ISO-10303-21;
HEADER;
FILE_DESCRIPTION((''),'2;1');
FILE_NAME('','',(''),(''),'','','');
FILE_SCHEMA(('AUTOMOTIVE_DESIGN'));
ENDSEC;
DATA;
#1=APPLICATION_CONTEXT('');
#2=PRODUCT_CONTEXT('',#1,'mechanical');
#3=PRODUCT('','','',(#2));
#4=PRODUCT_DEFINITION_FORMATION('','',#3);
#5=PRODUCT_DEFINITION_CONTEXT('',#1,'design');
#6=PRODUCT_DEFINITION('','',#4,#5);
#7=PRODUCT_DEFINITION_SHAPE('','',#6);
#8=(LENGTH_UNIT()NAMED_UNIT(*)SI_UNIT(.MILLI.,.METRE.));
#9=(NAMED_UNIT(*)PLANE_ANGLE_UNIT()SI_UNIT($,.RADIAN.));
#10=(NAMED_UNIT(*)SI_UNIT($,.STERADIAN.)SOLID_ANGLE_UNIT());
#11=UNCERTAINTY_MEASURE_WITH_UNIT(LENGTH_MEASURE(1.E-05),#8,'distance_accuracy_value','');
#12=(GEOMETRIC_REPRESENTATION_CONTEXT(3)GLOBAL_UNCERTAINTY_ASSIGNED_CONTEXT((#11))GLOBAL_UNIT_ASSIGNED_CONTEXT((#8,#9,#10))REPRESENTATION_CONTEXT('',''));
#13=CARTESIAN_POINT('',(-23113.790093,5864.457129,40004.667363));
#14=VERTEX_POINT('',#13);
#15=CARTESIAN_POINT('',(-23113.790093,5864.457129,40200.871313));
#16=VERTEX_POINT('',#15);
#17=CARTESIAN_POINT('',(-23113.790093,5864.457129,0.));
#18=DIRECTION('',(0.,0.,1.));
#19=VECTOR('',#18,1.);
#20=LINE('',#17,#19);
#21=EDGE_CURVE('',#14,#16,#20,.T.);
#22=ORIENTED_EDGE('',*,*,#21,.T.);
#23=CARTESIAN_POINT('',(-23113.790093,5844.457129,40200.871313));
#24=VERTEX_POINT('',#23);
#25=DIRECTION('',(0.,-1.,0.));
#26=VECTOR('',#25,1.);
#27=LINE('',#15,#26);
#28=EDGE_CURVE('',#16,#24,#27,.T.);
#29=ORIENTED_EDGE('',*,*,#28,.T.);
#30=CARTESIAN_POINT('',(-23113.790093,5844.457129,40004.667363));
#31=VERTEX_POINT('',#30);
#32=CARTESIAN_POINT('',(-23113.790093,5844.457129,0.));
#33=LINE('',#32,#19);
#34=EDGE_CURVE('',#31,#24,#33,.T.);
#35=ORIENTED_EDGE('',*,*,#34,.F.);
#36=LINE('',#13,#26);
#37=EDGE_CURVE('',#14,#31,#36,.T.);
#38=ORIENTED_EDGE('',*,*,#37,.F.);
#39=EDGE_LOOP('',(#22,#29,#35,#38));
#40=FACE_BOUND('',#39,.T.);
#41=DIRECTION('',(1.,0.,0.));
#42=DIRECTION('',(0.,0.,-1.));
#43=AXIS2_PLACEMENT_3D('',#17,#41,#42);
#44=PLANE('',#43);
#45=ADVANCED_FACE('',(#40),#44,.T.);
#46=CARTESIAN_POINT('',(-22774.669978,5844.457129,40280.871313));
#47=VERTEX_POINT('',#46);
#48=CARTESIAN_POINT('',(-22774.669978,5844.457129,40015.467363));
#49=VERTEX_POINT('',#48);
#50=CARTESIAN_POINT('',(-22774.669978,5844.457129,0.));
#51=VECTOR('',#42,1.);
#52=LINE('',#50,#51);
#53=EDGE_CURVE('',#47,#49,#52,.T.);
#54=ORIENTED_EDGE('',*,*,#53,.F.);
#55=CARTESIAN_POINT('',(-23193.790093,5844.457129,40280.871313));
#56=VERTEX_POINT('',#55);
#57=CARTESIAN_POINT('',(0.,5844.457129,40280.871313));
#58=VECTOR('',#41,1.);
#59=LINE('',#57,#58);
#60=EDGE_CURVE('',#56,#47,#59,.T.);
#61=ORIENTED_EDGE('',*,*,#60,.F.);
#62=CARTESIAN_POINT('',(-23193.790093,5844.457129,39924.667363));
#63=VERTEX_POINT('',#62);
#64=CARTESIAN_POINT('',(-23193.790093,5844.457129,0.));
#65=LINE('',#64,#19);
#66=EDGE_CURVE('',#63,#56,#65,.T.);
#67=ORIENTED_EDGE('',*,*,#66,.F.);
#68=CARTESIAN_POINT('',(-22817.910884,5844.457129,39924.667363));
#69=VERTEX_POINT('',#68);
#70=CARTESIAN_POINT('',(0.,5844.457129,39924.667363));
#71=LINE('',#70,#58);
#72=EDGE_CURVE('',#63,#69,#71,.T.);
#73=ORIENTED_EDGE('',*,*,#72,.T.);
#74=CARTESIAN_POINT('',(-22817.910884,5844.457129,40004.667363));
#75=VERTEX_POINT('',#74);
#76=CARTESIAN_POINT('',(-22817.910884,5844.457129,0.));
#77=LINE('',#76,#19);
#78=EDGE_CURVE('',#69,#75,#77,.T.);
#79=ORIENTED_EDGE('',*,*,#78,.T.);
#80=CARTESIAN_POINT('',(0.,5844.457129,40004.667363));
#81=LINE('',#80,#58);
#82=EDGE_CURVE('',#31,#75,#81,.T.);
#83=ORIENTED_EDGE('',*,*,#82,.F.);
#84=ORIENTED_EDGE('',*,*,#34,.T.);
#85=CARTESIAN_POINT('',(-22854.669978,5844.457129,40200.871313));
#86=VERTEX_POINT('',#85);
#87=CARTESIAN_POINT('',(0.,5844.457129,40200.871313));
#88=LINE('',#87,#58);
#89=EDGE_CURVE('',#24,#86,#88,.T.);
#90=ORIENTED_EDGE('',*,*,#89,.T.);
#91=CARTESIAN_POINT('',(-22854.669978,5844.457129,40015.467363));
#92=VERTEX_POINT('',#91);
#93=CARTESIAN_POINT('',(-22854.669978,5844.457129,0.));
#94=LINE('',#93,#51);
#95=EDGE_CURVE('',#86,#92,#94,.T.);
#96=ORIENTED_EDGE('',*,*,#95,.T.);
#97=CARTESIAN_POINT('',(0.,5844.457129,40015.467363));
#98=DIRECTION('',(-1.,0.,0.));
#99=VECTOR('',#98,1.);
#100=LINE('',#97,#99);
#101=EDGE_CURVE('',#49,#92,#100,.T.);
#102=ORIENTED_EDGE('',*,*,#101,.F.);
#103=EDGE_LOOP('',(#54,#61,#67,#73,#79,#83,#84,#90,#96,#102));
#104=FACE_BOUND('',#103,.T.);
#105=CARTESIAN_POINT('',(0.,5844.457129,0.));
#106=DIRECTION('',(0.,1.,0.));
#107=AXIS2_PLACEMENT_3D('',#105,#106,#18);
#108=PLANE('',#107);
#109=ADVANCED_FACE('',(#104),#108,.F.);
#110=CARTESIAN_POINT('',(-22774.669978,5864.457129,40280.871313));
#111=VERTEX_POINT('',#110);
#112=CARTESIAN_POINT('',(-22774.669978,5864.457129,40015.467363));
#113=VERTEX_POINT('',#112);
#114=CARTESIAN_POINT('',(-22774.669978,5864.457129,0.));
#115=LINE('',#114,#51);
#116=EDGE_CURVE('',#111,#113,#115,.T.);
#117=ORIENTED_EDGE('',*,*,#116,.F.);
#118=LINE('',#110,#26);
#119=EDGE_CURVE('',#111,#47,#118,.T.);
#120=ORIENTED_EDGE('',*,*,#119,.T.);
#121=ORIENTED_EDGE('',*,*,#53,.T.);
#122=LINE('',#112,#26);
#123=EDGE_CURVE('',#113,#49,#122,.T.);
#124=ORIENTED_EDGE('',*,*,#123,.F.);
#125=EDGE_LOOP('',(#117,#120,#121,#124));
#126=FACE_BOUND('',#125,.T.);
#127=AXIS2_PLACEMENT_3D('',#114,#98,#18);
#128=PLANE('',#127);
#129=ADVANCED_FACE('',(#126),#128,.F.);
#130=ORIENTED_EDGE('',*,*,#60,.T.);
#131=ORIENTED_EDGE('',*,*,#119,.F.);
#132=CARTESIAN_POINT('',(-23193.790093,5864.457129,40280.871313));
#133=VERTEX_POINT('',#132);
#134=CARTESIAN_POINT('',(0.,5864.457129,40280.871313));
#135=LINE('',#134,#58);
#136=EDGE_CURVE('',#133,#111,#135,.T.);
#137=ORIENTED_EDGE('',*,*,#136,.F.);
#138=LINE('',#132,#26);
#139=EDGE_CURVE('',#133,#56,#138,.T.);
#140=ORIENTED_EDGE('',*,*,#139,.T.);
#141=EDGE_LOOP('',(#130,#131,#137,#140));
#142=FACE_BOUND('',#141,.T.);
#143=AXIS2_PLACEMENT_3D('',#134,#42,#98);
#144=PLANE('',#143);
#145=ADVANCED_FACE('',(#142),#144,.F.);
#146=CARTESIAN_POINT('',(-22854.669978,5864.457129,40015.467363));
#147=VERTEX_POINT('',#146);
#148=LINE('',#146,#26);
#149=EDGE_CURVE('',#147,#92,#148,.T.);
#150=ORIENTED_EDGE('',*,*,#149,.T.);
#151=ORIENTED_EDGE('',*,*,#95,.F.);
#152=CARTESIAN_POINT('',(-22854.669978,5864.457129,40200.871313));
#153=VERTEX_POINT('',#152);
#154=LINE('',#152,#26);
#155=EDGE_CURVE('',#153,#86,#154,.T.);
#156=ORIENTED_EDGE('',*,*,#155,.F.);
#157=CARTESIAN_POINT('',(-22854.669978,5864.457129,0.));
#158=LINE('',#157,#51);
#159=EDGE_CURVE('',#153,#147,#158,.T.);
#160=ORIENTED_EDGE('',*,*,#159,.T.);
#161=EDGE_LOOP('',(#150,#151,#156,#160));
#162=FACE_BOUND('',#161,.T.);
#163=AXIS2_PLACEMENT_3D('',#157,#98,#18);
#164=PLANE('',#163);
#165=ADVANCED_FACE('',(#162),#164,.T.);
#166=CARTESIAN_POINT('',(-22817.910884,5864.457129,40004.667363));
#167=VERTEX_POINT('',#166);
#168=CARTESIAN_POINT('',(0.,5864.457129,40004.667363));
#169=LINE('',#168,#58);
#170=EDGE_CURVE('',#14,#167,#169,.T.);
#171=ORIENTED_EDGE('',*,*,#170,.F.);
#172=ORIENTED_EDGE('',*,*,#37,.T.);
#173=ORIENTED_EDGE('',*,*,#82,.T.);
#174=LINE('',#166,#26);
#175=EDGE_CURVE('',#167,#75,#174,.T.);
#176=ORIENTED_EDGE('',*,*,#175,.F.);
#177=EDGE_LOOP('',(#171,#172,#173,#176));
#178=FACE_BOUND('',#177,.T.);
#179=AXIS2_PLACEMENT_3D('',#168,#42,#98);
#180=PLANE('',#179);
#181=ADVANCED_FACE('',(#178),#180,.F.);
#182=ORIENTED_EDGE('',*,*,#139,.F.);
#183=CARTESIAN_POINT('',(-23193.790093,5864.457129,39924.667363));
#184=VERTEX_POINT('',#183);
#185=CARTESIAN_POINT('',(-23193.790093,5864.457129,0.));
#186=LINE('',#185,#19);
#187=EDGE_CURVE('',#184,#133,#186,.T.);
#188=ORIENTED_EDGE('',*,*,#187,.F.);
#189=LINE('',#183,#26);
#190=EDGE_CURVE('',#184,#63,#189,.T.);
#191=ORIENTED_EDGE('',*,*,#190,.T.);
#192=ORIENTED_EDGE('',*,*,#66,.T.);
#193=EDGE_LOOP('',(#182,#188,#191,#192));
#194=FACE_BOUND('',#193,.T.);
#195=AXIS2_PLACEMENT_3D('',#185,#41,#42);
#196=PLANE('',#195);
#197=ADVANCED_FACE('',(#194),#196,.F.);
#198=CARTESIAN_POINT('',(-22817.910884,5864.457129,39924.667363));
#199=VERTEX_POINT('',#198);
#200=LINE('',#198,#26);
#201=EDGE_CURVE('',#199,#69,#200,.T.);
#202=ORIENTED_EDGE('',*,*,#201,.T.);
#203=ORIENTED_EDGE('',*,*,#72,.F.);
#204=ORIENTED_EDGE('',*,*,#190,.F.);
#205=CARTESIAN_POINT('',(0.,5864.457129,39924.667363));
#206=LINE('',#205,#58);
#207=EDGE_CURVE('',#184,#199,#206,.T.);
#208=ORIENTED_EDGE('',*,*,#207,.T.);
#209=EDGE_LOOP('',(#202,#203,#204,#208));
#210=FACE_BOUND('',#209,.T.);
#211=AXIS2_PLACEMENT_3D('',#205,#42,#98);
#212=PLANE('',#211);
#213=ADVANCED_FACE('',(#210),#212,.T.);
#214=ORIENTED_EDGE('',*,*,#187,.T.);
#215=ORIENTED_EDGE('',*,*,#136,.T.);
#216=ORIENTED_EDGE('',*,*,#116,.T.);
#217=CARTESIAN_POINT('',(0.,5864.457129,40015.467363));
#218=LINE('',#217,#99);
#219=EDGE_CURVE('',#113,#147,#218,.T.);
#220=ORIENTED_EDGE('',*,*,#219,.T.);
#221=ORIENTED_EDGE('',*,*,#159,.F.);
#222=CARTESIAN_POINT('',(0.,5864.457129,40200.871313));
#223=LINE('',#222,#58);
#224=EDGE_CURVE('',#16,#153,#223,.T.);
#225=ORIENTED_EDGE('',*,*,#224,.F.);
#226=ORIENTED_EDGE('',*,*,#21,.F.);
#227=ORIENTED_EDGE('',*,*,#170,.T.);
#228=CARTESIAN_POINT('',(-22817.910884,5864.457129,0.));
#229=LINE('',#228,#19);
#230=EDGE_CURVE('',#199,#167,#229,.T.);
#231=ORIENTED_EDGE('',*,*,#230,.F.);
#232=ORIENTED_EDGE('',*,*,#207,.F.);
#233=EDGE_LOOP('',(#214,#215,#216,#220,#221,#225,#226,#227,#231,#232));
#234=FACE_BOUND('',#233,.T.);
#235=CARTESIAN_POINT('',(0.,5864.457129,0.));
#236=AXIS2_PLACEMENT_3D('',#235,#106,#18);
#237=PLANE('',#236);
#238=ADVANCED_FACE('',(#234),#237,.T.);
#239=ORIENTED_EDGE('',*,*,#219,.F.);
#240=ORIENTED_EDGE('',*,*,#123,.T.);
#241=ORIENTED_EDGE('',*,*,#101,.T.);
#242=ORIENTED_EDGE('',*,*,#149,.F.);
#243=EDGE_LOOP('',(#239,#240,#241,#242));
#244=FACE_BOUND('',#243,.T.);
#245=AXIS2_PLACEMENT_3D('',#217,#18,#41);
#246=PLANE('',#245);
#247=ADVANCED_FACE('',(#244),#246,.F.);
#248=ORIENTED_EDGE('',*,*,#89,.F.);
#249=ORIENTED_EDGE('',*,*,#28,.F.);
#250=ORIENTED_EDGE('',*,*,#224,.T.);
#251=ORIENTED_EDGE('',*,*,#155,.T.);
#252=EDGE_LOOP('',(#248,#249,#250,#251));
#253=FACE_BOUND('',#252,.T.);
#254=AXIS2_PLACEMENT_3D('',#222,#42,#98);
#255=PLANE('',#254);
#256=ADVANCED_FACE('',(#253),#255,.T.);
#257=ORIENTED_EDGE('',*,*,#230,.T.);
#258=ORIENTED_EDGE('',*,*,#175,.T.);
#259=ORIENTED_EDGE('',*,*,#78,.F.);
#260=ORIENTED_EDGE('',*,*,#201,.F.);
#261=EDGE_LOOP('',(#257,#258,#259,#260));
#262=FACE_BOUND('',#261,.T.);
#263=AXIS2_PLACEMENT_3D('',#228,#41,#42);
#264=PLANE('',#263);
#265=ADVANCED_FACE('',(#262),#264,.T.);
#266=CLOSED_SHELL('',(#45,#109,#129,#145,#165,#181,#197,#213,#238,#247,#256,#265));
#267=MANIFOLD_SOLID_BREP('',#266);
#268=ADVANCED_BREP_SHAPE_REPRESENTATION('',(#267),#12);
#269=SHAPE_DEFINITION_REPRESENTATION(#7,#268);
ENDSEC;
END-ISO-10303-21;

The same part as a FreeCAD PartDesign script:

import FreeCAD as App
import Part
import Sketcher
from FreeCAD import Vector
Q = App.Units.Quantity

doc = App.newDocument("Part")
body = doc.addObject("PartDesign::Body", "Body")

# Sketch on XZ plane
sketch1 = body.newObject("Sketcher::SketchObject", "Sketch")
sketch1.AttachmentSupport = (doc.getObject("XZ_Plane"), [""])
sketch1.MapMode = "FlatFace"
sketch1.AttachmentOffset = App.Placement(Vector(0, 0, -5844.457129), App.Rotation())
sketch1.addGeometry(Part.LineSegment(Vector(-23194, 39925, 0), Vector(-23194, 40281, 0)), False)
sketch1.addGeometry(Part.LineSegment(Vector(-23194, 40281, 0), Vector(-22775, 40281, 0)), False)
sketch1.addGeometry(Part.LineSegment(Vector(-22775, 40281, 0), Vector(-22775, 40015, 0)), False)
sketch1.addGeometry(Part.LineSegment(Vector(-22775, 40015, 0), Vector(-22855, 40015, 0)), False)
sketch1.addGeometry(Part.LineSegment(Vector(-22855, 40015, 0), Vector(-22855, 40201, 0)), False)
sketch1.addGeometry(Part.LineSegment(Vector(-22855, 40201, 0), Vector(-23114, 40201, 0)), False)
sketch1.addGeometry(Part.LineSegment(Vector(-23114, 40201, 0), Vector(-23114, 40005, 0)), False)
sketch1.addGeometry(Part.LineSegment(Vector(-23114, 40005, 0), Vector(-22818, 40005, 0)), False)
sketch1.addGeometry(Part.LineSegment(Vector(-22818, 40005, 0), Vector(-22818, 39925, 0)), False)
sketch1.addGeometry(Part.LineSegment(Vector(-22818, 39925, 0), Vector(-23114, 39925, 0)), False)
sketch1.addGeometry(Part.LineSegment(Vector(-23114, 39925, 0), Vector(-23194, 39925, 0)), False)
sketch1.addConstraint(Sketcher.Constraint("Coincident", 0, 2, 1, 1))
sketch1.addConstraint(Sketcher.Constraint("Coincident", 1, 2, 2, 1))
sketch1.addConstraint(Sketcher.Constraint("Coincident", 2, 2, 3, 1))
sketch1.addConstraint(Sketcher.Constraint("Coincident", 3, 2, 4, 1))
sketch1.addConstraint(Sketcher.Constraint("Coincident", 4, 2, 5, 1))
sketch1.addConstraint(Sketcher.Constraint("Coincident", 5, 2, 6, 1))
sketch1.addConstraint(Sketcher.Constraint("Coincident", 6, 2, 7, 1))
sketch1.addConstraint(Sketcher.Constraint("Coincident", 7, 2, 8, 1))
sketch1.addConstraint(Sketcher.Constraint("Coincident", 8, 2, 9, 1))
sketch1.addConstraint(Sketcher.Constraint("Coincident", 9, 2, 10, 1))
sketch1.addConstraint(Sketcher.Constraint("Coincident", 10, 2, 0, 1))
sketch1.addConstraint(Sketcher.Constraint("Vertical", 0))
sketch1.addConstraint(Sketcher.Constraint("Horizontal", 1))
sketch1.addConstraint(Sketcher.Constraint("Vertical", 2))
sketch1.addConstraint(Sketcher.Constraint("Horizontal", 3))
sketch1.addConstraint(Sketcher.Constraint("Vertical", 4))
sketch1.addConstraint(Sketcher.Constraint("Horizontal", 5))
sketch1.addConstraint(Sketcher.Constraint("Vertical", 6))
sketch1.addConstraint(Sketcher.Constraint("Horizontal", 7))
sketch1.addConstraint(Sketcher.Constraint("Vertical", 8))
sketch1.addConstraint(Sketcher.Constraint("Horizontal", 9))
sketch1.addConstraint(Sketcher.Constraint("Horizontal", 10))
sketch1.addConstraint(Sketcher.Constraint("Vertical", 6, 2, 9, 2))
sketch1.addConstraint(Sketcher.Constraint("Equal", 3, 10))
sketch1.addConstraint(Sketcher.Constraint("Equal", 10, 8))
sketch1.addConstraint(Sketcher.Constraint("DistanceX", 3, 2, 3, 1, Q("80 mm")))
sketch1.addConstraint(Sketcher.Constraint("DistanceY", 4, 2, 1, 2, Q("80 mm")))
sketch1.addConstraint(Sketcher.Constraint("DistanceY", 6, 2, 3, 2, Q("10.8 mm")))
sketch1.addConstraint(Sketcher.Constraint("DistanceX", 7, 1, 7, 2, Q("295.87921 mm")))
sketch1.addConstraint(Sketcher.Constraint("DistanceY", 0, 1, 0, 2, Q("356.20395 mm")))
sketch1.addConstraint(Sketcher.Constraint("DistanceX", 1, 1, 1, 2, Q("419.120115 mm")))
sketch1.addConstraint(Sketcher.Constraint("DistanceX", 1, 2, -1, 1, Q("22774.669978 mm")))
sketch1.addConstraint(Sketcher.Constraint("DistanceY", -1, 1, 0, 2, Q("40280.871313 mm")))
pad1 = body.newObject("PartDesign::Pad", "Pad")
pad1.Profile = sketch1
pad1.Length = 20
pad1.Reversed = True

doc.recompute()
